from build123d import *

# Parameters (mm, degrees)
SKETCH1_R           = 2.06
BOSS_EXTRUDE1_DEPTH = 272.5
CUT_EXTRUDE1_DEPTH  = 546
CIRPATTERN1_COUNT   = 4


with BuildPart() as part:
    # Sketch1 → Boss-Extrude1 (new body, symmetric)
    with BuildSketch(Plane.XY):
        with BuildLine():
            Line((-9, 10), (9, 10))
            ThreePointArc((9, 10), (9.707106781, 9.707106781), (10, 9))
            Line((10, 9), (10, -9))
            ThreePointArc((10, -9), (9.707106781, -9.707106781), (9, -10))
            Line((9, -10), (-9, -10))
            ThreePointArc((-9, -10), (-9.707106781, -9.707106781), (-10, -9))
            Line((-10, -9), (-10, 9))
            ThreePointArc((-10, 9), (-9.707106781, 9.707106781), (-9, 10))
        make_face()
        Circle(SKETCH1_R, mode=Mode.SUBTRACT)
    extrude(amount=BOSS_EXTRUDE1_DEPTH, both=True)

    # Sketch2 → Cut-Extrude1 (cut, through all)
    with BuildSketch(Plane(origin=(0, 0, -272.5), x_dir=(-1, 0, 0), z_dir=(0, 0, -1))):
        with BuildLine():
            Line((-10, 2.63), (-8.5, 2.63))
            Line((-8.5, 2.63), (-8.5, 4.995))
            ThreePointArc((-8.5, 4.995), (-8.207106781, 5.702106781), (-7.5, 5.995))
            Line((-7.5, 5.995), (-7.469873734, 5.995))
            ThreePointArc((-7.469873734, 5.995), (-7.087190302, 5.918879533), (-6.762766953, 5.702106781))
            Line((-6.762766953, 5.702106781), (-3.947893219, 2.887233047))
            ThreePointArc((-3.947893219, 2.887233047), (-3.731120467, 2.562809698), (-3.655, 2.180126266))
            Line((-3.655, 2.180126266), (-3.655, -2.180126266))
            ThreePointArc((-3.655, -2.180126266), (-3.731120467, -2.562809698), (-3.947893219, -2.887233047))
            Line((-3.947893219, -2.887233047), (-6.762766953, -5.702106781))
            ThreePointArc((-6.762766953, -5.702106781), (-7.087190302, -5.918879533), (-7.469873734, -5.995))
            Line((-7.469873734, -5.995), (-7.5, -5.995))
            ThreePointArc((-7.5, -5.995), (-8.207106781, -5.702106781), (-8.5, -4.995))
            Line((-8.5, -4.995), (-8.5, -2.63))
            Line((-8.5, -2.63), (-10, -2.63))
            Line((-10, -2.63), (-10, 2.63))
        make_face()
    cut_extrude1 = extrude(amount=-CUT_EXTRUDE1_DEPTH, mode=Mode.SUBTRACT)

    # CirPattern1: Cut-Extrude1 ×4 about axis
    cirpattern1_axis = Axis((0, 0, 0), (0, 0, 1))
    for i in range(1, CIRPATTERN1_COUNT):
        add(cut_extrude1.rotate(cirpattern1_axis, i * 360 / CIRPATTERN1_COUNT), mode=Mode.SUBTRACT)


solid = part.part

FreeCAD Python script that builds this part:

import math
import FreeCAD as App
import Part
import Sketcher
from FreeCAD import Vector
Q = App.Units.Quantity

doc = App.newDocument("Part")
body = doc.addObject("PartDesign::Body", "Body")

# Sketch on XY plane
sketch1 = body.newObject("Sketcher::SketchObject", "Sketch")
sketch1.AttachmentSupport = (doc.getObject("XY_Plane"), [""])
sketch1.MapMode = "FlatFace"
sketch1.addGeometry([
    Part.LineSegment(Vector(9, 10, 0), Vector(-9, 10, 0)),  # 0
    Part.ArcOfCircle(Part.Circle(Vector(-9, 9, 0), Vector(0, 0, 1), 1), math.radians(90), math.radians(180)),  # 1
    Part.LineSegment(Vector(-10, 9, 0), Vector(-10, -9, 0)),  # 2
    Part.ArcOfCircle(Part.Circle(Vector(-9, -9, 0), Vector(0, 0, 1), 1), math.radians(-180), math.radians(-90)),  # 3
    Part.LineSegment(Vector(-9, -10, 0), Vector(9, -10, 0)),  # 4
    Part.ArcOfCircle(Part.Circle(Vector(9, -9, 0), Vector(0, 0, 1), 1), math.radians(-90), math.radians(0)),  # 5
    Part.LineSegment(Vector(10, -9, 0), Vector(10, 9, 0)),  # 6
    Part.ArcOfCircle(Part.Circle(Vector(9, 9, 0), Vector(0, 0, 1), 1), math.radians(0), math.radians(90)),  # 7
    Part.Circle(Vector(0, 0, 0), Vector(0, 0, 1), 2.1),  # 8
], False)
sketch1.addConstraint([
    Sketcher.Constraint("Tangent", 0, 2, 1, 1),
    Sketcher.Constraint("Tangent", 1, 2, 2, 1),
    Sketcher.Constraint("Tangent", 2, 2, 3, 1),
    Sketcher.Constraint("Tangent", 3, 2, 4, 1),
    Sketcher.Constraint("Tangent", 4, 2, 5, 1),
    Sketcher.Constraint("Tangent", 5, 2, 6, 1),
    Sketcher.Constraint("Tangent", 6, 2, 7, 1),
    Sketcher.Constraint("Tangent", 7, 2, 0, 1),
    Sketcher.Constraint("Horizontal", 0),
    Sketcher.Constraint("Vertical", 2),
    Sketcher.Constraint("Horizontal", 4),
    Sketcher.Constraint("Vertical", 6),
    Sketcher.Constraint("Coincident", 8, 3, -1, 1),
    Sketcher.Constraint("Equal", 1, 3),
    Sketcher.Constraint("Equal", 3, 5),
    Sketcher.Constraint("Equal", 5, 7),
    Sketcher.Constraint("Symmetric", 1, 3, 5, 3, -1, 1),
    Sketcher.Constraint("Equal", 4, 2),
    Sketcher.Constraint("Radius", 1, Q("1 mm")),
    Sketcher.Constraint("Diameter", 8, Q("4.12 mm")),
    Sketcher.Constraint("DistanceX", 0, 2, 0, 1, Q("18 mm")),
])
pad1 = body.newObject("PartDesign::Pad", "Pad")
pad1.Profile = sketch1
pad1.Length = 545
pad1.Midplane = True

# Sketch on XY plane
sketch2 = body.newObject("Sketcher::SketchObject", "Sketch001")
sketch2.AttachmentSupport = (doc.getObject("XY_Plane"), [""])
sketch2.MapMode = "FlatFace"
sketch2.AttachmentOffset = App.Placement(Vector(0, 0, -272.5), App.Rotation())
sketch2.addGeometry([
    Part.LineSegment(Vector(8.5, 2.63, 0), Vector(10, 2.63, 0)),  # 0
    Part.LineSegment(Vector(10, 2.63, 0), Vector(10, -2.63, 0)),  # 1
    Part.LineSegment(Vector(10, -2.63, 0), Vector(8.5, -2.63, 0)),  # 2
    Part.LineSegment(Vector(8.5, -2.63, 0), Vector(8.5, -4.995, 0)),  # 3
    Part.ArcOfCircle(Part.Circle(Vector(7.5, -4.995, 0), Vector(0, 0, 1), 1), math.radians(-90), math.radians(0)),  # 4
    Part.LineSegment(Vector(7.5, -5.995, 0), Vector(7.47, -5.995, 0)),  # 5
    Part.ArcOfCircle(Part.Circle(Vector(7.47, -4.995, 0), Vector(0, 0, 1), 1), math.radians(-135), math.radians(-90)),  # 6
    Part.LineSegment(Vector(6.763, -5.702, 0), Vector(3.948, -2.887, 0)),  # 7
    Part.ArcOfCircle(Part.Circle(Vector(4.655, -2.18, 0), Vector(0, 0, 1), 1), math.radians(180), math.radians(225)),  # 8
    Part.LineSegment(Vector(3.655, -2.18, 0), Vector(3.655, 2.18, 0)),  # 9
    Part.ArcOfCircle(Part.Circle(Vector(4.655, 2.18, 0), Vector(0, 0, 1), 1), math.radians(135), math.radians(180)),  # 10
    Part.LineSegment(Vector(3.948, 2.887, 0), Vector(6.763, 5.702, 0)),  # 11
    Part.ArcOfCircle(Part.Circle(Vector(7.47, 4.995, 0), Vector(0, 0, 1), 1), math.radians(90), math.radians(135)),  # 12
    Part.LineSegment(Vector(7.47, 5.995, 0), Vector(7.5, 5.995, 0)),  # 13
    Part.ArcOfCircle(Part.Circle(Vector(7.5, 4.995, 0), Vector(0, 0, 1), 1), math.radians(0), math.radians(90)),  # 14
    Part.LineSegment(Vector(8.5, 4.995, 0), Vector(8.5, 2.63, 0)),  # 15
], False)
sketch2.addConstraint([
    Sketcher.Constraint("Coincident", 0, 2, 1, 1),
    Sketcher.Constraint("Coincident", 1, 2, 2, 1),
    Sketcher.Constraint("Coincident", 2, 2, 3, 1),
    Sketcher.Constraint("Tangent", 3, 2, 4, 2),
    Sketcher.Constraint("Tangent", 4, 1, 5, 1),
    Sketcher.Constraint("Tangent", 5, 2, 6, 2),
    Sketcher.Constraint("Tangent", 6, 1, 7, 1),
    Sketcher.Constraint("Tangent", 7, 2, 8, 2),
    Sketcher.Constraint("Tangent", 8, 1, 9, 1),
    Sketcher.Constraint("Tangent", 9, 2, 10, 2),
    Sketcher.Constraint("Tangent", 10, 1, 11, 1),
    Sketcher.Constraint("Tangent", 11, 2, 12, 2),
    Sketcher.Constraint("Tangent", 12, 1, 13, 1),
    Sketcher.Constraint("Tangent", 13, 2, 14, 2),
    Sketcher.Constraint("Tangent", 14, 1, 15, 1),
    Sketcher.Constraint("Coincident", 15, 2, 0, 1),
    Sketcher.Constraint("Horizontal", 0),
    Sketcher.Constraint("Vertical", 1),
    Sketcher.Constraint("Horizontal", 2),
    Sketcher.Constraint("Vertical", 3),
    Sketcher.Constraint("Horizontal", 5),
    Sketcher.Constraint("Vertical", 9),
    Sketcher.Constraint("Horizontal", 13),
    Sketcher.Constraint("Vertical", 15),
    Sketcher.Constraint("Equal", 4, 6),
    Sketcher.Constraint("Equal", 6, 8),
    Sketcher.Constraint("Equal", 8, 10),
    Sketcher.Constraint("Equal", 10, 12),
    Sketcher.Constraint("Equal", 12, 14),
    Sketcher.Constraint("Symmetric", 6, 3, 12, 3, -1),
    Sketcher.Constraint("Symmetric", 2, 2, 15, 2, -1),
    Sketcher.Constraint("Perpendicular", 7, 11),
    Sketcher.Constraint("Vertical", 7, 2, 10, 1),
    Sketcher.Constraint("Radius", 4, Q("1 mm")),
    Sketcher.Constraint("DistanceX", 0, 1, 0, 2, Q("1.5 mm")),
    Sketcher.Constraint("DistanceX", -1, 1, 0, 2, Q("10 mm")),
    Sketcher.Constraint("DistanceY", 1, 2, 1, 1, Q("5.26 mm")),
    Sketcher.Constraint("DistanceY", 3, 2, 3, 1, Q("2.365 mm")),
    Sketcher.Constraint("DistanceX", -1, 1, 8, 3, Q("4.655 mm")),
    Sketcher.Constraint("DistanceX", 5, 2, 5, 1, Q("0.030126 mm")),
])
pocket1 = body.newObject("PartDesign::Pocket", "Pocket")
pocket1.Profile = sketch2
pocket1.Type = "ThroughAll"
pocket1.Reversed = True
doc.recompute()

polarpattern = body.newObject("PartDesign::PolarPattern", "PolarPattern")
polarpattern.Originals = [pocket1]
polarpattern.Axis = (doc.getObject("Z_Axis"), [""])
polarpattern.Angle = 360
polarpattern.Occurrences = 4
body.Tip = polarpattern

doc.recompute()
